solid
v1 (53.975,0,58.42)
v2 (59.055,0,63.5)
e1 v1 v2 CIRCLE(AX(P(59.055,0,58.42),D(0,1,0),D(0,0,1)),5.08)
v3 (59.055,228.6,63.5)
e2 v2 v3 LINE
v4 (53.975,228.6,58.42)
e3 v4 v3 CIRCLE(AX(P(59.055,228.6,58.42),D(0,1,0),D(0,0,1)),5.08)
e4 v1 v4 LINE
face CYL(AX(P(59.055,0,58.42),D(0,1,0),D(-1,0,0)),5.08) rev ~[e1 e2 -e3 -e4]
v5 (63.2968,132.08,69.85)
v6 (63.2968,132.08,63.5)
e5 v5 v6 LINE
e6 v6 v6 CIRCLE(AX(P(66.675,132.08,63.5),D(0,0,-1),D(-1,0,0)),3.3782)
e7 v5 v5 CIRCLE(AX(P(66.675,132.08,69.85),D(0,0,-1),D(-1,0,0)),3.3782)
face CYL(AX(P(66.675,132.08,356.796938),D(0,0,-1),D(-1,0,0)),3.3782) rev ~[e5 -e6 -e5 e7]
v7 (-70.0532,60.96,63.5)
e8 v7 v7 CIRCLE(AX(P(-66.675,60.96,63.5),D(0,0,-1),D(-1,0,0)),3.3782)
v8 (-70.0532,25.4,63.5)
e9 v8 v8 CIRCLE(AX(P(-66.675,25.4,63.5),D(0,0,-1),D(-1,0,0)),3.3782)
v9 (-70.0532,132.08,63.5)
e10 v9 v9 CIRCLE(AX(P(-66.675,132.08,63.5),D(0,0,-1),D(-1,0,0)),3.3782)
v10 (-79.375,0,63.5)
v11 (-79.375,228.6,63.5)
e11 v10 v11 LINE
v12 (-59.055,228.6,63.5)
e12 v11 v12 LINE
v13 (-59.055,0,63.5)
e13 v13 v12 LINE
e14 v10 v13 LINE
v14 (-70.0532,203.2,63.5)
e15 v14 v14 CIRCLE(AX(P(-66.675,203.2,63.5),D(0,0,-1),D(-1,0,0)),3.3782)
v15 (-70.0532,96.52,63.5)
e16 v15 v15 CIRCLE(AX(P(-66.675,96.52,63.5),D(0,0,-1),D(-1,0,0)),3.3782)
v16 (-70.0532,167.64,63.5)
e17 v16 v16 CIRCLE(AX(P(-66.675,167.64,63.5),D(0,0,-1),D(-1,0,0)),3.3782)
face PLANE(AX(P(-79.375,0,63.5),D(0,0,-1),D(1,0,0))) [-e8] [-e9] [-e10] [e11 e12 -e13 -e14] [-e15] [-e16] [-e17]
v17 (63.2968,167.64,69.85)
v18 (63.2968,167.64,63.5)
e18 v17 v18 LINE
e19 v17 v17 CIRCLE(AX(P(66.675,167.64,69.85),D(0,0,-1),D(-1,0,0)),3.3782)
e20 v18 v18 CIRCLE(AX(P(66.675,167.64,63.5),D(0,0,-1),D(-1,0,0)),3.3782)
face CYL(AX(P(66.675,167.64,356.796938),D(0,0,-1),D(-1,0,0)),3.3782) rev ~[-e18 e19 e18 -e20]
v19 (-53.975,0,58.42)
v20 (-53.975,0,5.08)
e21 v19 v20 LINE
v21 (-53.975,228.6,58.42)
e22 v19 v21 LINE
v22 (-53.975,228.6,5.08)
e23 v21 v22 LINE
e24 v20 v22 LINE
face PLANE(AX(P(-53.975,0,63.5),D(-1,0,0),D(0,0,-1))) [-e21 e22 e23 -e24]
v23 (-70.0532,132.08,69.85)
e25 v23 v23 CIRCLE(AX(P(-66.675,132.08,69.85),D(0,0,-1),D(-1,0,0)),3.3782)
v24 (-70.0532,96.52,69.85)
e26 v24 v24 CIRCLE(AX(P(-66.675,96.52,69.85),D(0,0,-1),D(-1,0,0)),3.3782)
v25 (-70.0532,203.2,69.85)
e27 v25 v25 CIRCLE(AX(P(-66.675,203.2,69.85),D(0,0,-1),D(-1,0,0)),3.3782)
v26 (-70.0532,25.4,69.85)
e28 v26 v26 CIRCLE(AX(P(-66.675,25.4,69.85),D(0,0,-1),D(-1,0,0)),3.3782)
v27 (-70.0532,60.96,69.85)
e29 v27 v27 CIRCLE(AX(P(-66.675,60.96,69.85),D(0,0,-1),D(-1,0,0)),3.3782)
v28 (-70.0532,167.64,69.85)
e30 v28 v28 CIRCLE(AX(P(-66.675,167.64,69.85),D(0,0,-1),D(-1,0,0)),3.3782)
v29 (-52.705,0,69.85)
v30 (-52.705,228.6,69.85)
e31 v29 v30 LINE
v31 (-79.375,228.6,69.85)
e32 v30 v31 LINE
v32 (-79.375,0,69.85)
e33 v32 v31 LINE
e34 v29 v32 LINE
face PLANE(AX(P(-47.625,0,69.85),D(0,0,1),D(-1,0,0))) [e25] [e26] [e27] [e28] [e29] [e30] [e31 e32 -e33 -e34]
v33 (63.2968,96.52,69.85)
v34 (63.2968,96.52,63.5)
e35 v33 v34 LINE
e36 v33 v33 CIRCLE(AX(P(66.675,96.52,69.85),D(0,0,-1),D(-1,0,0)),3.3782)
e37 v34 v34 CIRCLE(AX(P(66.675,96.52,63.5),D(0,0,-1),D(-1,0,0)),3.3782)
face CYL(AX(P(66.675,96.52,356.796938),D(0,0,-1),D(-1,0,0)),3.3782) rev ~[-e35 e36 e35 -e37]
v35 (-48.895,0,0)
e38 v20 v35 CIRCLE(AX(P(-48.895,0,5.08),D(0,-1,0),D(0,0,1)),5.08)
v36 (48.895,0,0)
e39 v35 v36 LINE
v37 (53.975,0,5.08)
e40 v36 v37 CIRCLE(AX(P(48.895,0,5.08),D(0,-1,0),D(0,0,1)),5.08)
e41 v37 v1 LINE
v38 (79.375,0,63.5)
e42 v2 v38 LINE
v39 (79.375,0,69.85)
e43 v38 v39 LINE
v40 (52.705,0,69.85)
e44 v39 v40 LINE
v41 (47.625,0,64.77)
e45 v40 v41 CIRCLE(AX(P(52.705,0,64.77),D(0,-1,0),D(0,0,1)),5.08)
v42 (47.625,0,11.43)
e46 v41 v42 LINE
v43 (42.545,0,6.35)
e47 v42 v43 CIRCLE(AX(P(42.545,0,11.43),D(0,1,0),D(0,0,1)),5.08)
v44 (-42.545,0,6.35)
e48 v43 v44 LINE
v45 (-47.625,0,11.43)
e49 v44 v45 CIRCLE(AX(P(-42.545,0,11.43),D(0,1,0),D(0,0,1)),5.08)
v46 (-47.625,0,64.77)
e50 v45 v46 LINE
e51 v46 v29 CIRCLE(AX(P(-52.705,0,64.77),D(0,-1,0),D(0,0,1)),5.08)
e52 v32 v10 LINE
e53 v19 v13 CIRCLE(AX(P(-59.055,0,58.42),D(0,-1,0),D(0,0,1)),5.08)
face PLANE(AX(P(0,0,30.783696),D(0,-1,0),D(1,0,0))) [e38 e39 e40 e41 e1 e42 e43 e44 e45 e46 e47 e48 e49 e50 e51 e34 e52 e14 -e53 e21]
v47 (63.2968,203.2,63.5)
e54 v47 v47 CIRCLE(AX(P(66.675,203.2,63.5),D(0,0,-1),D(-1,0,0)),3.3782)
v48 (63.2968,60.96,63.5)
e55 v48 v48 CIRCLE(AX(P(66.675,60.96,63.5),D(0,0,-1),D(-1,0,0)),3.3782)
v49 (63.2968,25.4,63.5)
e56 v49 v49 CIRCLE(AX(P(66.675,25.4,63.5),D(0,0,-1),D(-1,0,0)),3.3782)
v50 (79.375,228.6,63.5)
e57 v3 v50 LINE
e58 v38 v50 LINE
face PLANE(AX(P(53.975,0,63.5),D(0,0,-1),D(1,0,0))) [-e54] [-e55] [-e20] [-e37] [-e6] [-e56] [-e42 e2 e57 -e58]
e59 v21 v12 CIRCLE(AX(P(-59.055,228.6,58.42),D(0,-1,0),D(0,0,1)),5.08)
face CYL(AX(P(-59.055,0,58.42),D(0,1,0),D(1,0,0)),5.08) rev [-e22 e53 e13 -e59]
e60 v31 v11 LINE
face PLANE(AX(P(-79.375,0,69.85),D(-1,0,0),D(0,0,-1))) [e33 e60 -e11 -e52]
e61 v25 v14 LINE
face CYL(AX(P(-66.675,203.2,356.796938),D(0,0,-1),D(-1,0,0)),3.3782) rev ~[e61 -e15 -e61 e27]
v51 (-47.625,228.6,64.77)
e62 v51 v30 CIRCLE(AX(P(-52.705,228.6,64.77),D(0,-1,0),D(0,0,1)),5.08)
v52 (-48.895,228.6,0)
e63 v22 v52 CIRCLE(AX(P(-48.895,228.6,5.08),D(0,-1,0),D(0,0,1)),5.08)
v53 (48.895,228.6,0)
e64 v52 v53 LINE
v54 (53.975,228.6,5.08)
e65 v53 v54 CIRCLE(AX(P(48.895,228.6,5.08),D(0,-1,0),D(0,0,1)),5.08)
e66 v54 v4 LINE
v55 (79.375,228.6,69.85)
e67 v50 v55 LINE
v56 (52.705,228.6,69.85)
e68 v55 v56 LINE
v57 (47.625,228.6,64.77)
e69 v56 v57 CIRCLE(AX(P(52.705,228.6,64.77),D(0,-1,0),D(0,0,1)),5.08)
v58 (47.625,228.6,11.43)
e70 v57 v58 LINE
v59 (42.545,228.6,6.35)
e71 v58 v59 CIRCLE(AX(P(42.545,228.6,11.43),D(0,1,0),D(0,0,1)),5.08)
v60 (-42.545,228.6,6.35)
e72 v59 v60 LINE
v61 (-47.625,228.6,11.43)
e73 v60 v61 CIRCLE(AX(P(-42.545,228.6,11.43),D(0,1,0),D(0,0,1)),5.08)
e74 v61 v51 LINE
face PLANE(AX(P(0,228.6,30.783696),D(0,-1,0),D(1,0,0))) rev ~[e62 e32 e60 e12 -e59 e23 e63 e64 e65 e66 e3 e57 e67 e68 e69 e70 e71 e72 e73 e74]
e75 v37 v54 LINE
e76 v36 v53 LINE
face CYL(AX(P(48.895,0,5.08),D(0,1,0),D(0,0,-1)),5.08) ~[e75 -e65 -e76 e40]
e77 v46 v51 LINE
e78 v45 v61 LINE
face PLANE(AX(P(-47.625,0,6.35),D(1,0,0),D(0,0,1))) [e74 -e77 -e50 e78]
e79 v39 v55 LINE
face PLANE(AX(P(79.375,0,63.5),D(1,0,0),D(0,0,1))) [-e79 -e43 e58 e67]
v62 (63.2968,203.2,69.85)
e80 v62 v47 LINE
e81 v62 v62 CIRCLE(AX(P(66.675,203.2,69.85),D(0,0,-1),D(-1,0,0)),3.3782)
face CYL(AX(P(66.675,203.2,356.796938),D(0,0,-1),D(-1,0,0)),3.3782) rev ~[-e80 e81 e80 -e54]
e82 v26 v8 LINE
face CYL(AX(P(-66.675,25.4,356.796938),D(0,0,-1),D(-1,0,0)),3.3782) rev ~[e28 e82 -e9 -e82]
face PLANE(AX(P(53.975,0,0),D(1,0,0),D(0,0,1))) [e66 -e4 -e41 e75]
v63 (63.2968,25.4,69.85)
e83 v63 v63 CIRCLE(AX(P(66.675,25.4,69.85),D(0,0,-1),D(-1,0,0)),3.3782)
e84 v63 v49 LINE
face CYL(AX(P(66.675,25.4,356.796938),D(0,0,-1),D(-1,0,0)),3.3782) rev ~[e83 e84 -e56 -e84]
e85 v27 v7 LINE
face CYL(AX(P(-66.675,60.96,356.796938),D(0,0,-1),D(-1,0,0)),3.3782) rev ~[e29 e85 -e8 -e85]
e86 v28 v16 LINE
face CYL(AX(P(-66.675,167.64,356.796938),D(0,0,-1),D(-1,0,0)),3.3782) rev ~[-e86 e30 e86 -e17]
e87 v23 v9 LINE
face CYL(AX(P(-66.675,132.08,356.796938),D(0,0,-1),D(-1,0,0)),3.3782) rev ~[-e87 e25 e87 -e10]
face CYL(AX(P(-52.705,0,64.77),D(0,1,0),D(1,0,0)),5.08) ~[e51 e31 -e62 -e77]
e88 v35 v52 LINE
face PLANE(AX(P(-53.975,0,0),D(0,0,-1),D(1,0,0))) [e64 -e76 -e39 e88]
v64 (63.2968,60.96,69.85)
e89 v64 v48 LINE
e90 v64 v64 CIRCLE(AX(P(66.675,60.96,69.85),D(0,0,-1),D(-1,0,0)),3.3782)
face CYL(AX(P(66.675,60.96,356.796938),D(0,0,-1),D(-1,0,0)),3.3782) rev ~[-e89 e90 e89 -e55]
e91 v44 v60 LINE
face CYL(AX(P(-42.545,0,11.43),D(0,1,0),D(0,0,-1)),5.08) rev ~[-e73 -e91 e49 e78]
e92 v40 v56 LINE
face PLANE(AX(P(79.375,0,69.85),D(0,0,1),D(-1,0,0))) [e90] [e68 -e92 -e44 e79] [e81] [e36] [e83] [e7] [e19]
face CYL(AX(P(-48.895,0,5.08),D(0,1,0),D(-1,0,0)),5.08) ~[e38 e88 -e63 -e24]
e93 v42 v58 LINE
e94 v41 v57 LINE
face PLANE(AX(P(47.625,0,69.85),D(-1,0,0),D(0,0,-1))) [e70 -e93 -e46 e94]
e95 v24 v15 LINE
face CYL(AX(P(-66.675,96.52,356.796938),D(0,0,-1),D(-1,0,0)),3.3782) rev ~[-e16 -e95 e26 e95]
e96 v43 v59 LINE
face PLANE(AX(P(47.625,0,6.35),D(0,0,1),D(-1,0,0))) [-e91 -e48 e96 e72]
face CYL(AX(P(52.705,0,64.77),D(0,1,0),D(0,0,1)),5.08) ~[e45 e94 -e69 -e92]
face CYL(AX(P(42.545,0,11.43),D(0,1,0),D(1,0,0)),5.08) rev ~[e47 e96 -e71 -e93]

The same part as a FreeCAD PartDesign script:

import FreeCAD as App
import Part
import Sketcher

V = App.Vector
Q = App.Units.Quantity


def edges_at(feature, points):
    """Names of the edges that pass closest to the given points."""
    edges = feature.Shape.Edges
    near = lambda p: min(range(len(edges)), key=lambda i: edges[i].distToShape(Part.Vertex(*p))[0])
    return sorted({f"Edge{near(p) + 1}" for p in points})

doc = App.newDocument("Part")
params = doc.addObject("Spreadsheet::Sheet", "Params")
for row, (alias, value) in enumerate([
    ("sketch1_width", "1 in"),
    ("sketch1_height", "2.5 in"),
    ("sketch1_width2", "4.25 in"),
    ("sketch1_height2", "0.25 in"),
    ("pad1_length", "9 in"),
    ("fillet_radius", "0.2 in"),
    ("sketch2_diameter", "0.266 in"),
    ("hole_diameter", "0.266 in"),
    ("sketch3_diameter", "0.266 in"),
    ("hole2_diameter", "0.266 in"),
], start=1):
    params.set(f"A{row}", alias)
    params.set(f"B{row}", "=" + value)
    params.setAlias(f"B{row}", alias)

body = doc.addObject("PartDesign::Body", "Body")

sketch1 = body.newObject("Sketcher::SketchObject", "Sketch")
sketch1.AttachmentSupport = (doc.getObject("XZ_Plane"), [""])
sketch1.MapMode = "FlatFace"
sketch1.addGeometry(Part.LineSegment(V(-54, 64, 0), V(-54, 0, 0)), False)
sketch1.addGeometry(Part.LineSegment(V(-54, 0, 0), V(54, 0, 0)), False)
sketch1.addGeometry(Part.LineSegment(V(54, 0, 0), V(54, 64, 0)), False)
sketch1.addGeometry(Part.LineSegment(V(54, 64, 0), V(79, 64, 0)), False)
sketch1.addGeometry(Part.LineSegment(V(79, 64, 0), V(79, 70, 0)), False)
sketch1.addGeometry(Part.LineSegment(V(79, 70, 0), V(48, 70, 0)), False)
sketch1.addGeometry(Part.LineSegment(V(48, 70, 0), V(48, 6, 0)), False)
sketch1.addGeometry(Part.LineSegment(V(48, 6, 0), V(-48, 6, 0)), False)
sketch1.addGeometry(Part.LineSegment(V(-48, 6, 0), V(-48, 70, 0)), False)
sketch1.addGeometry(Part.LineSegment(V(-48, 70, 0), V(-79, 70, 0)), False)
sketch1.addGeometry(Part.LineSegment(V(-79, 70, 0), V(-79, 64, 0)), False)
sketch1.addGeometry(Part.LineSegment(V(-79, 64, 0), V(-54, 64, 0)), False)
sketch1.addConstraint(Sketcher.Constraint("Coincident", 0, 2, 1, 1))
sketch1.addConstraint(Sketcher.Constraint("Coincident", 1, 2, 2, 1))
sketch1.addConstraint(Sketcher.Constraint("Coincident", 2, 2, 3, 1))
sketch1.addConstraint(Sketcher.Constraint("Coincident", 3, 2, 4, 1))
sketch1.addConstraint(Sketcher.Constraint("Coincident", 4, 2, 5, 1))
sketch1.addConstraint(Sketcher.Constraint("Coincident", 5, 2, 6, 1))
sketch1.addConstraint(Sketcher.Constraint("Coincident", 6, 2, 7, 1))
sketch1.addConstraint(Sketcher.Constraint("Coincident", 7, 2, 8, 1))
sketch1.addConstraint(Sketcher.Constraint("Coincident", 8, 2, 9, 1))
sketch1.addConstraint(Sketcher.Constraint("Coincident", 9, 2, 10, 1))
sketch1.addConstraint(Sketcher.Constraint("Coincident", 10, 2, 11, 1))
sketch1.addConstraint(Sketcher.Constraint("Coincident", 11, 2, 0, 1))
sketch1.addConstraint(Sketcher.Constraint("Vertical", 0))
sketch1.addConstraint(Sketcher.Constraint("Horizontal", 1))
sketch1.addConstraint(Sketcher.Constraint("Vertical", 2))
sketch1.addConstraint(Sketcher.Constraint("Horizontal", 3))
sketch1.addConstraint(Sketcher.Constraint("Vertical", 4))
sketch1.addConstraint(Sketcher.Constraint("Horizontal", 5))
sketch1.addConstraint(Sketcher.Constraint("Vertical", 6))
sketch1.addConstraint(Sketcher.Constraint("Horizontal", 7))
sketch1.addConstraint(Sketcher.Constraint("Vertical", 8))
sketch1.addConstraint(Sketcher.Constraint("Horizontal", 9))
sketch1.addConstraint(Sketcher.Constraint("Vertical", 10))
sketch1.addConstraint(Sketcher.Constraint("Horizontal", 11))
sketch1.addConstraint(Sketcher.Constraint("Symmetric", 0, 2, 1, 2, -1, 1))
sketch1.addConstraint(Sketcher.Constraint("Symmetric", 5, 2, 8, 2, -2))
sketch1.addConstraint(Sketcher.Constraint("Symmetric", 3, 2, 10, 2, -2))
sketch1.addConstraint(Sketcher.Constraint("Equal", 2, 6))
sketch1.addConstraint(Sketcher.Constraint("DistanceX", 3, 1, 3, 2, Q("1 in")))
sketch1.addConstraint(Sketcher.Constraint("DistanceY", 0, 2, 0, 1, Q("2.5 in")))
sketch1.addConstraint(Sketcher.Constraint("DistanceX", 0, 2, 5, 2, Q("4 in")))
sketch1.addConstraint(Sketcher.Constraint("DistanceX", 1, 1, 1, 2, Q("4.25 in")))
sketch1.addConstraint(Sketcher.Constraint("DistanceY", 4, 1, 4, 2, Q("0.25 in")))
sketch1.setExpression("Constraints[28]", "Params.sketch1_width")
sketch1.setExpression("Constraints[29]", "Params.sketch1_height")
sketch1.setExpression("Constraints[31]", "Params.sketch1_width2")
sketch1.setExpression("Constraints[32]", "Params.sketch1_height2")
pad1 = body.newObject("PartDesign::Pad", "Pad")
pad1.Profile = sketch1
pad1.setExpression("Length", "Params.pad1_length")
pad1.Reversed = True
doc.recompute()

fillet = body.newObject("PartDesign::Fillet", "Fillet")
fillet.Base = (pad1, edges_at(pad1, [
    (-47.625, 114.3, 69.85),
    (-47.625, 114.3, 6.35),
    (53.975, 114.3, 0),
    (47.625, 114.3, 6.35),
    (-53.975, 114.3, 0),
    (-53.975, 114.3, 63.5),
    (53.975, 114.3, 63.5),
    (47.625, 114.3, 69.85),
]))
fillet.setExpression("Radius", "Params.fillet_radius")

sketch2 = body.newObject("Sketcher::SketchObject", "Sketch001")
sketch2.AttachmentSupport = (doc.getObject("XY_Plane"), [""])
sketch2.MapMode = "FlatFace"
sketch2.AttachmentOffset = App.Placement(V(0, 0, 2.75 * 25.4), App.Rotation())
sketch2.addGeometry(Part.Circle(V(-66.7, 203.2, 0), V(0, 0, 1), 3.4), False)
sketch2.addGeometry(Part.Circle(V(-66.7, 167.6, 0), V(0, 0, 1), 3.4), False)
sketch2.addGeometry(Part.Circle(V(-66.7, 132.1, 0), V(0, 0, 1), 3.4), False)
sketch2.addGeometry(Part.Circle(V(-66.7, 96.5, 0), V(0, 0, 1), 3.4), False)
sketch2.addGeometry(Part.Circle(V(-66.7, 61, 0), V(0, 0, 1), 3.4), False)
sketch2.addGeometry(Part.Circle(V(-66.7, 25.4, 0), V(0, 0, 1), 3.4), False)
sketch2.addConstraint(Sketcher.Constraint("Equal", 0, 1))
sketch2.addConstraint(Sketcher.Constraint("Equal", 1, 2))
sketch2.addConstraint(Sketcher.Constraint("Equal", 2, 3))
sketch2.addConstraint(Sketcher.Constraint("Equal", 3, 4))
sketch2.addConstraint(Sketcher.Constraint("Equal", 4, 5))
sketch2.addConstraint(Sketcher.Constraint("Vertical", 0, 3, 1, 3))
sketch2.addConstraint(Sketcher.Constraint("Vertical", 1, 3, 2, 3))
sketch2.addConstraint(Sketcher.Constraint("Vertical", 2, 3, 3, 3))
sketch2.addConstraint(Sketcher.Constraint("Vertical", 3, 3, 4, 3))
sketch2.addConstraint(Sketcher.Constraint("Vertical", 4, 3, 5, 3))
sketch2.addConstraint(Sketcher.Constraint("Diameter", 0, Q("0.266 in")))
sketch2.addConstraint(Sketcher.Constraint("DistanceY", -1, 1, 0, 3, Q("8 in")))
sketch2.addConstraint(Sketcher.Constraint("DistanceY", -1, 1, 5, 3, Q("1 in")))
sketch2.addConstraint(Sketcher.Constraint("DistanceY", -1, 1, 1, 3, Q("6.6 in")))
sketch2.addConstraint(Sketcher.Constraint("DistanceY", -1, 1, 2, 3, Q("5.2 in")))
sketch2.addConstraint(Sketcher.Constraint("DistanceY", -1, 1, 3, 3, Q("3.8 in")))
sketch2.addConstraint(Sketcher.Constraint("DistanceY", -1, 1, 4, 3, Q("2.4 in")))
sketch2.addConstraint(Sketcher.Constraint("DistanceX", 0, 3, -1, 1, Q("2.625 in")))
sketch2.setExpression("Constraints[10]", "Params.sketch2_diameter")
doc.recompute()
hole = body.newObject("PartDesign::Hole", "Hole")
hole.Profile = sketch2
hole.ThreadType = "None"
hole.setExpression("Diameter", "Params.hole_diameter")
hole.DepthType = "ThroughAll"

sketch3 = body.newObject("Sketcher::SketchObject", "Sketch002")
sketch3.AttachmentSupport = (doc.getObject("XY_Plane"), [""])
sketch3.MapMode = "FlatFace"
sketch3.AttachmentOffset = App.Placement(V(0, 0, 2.75 * 25.4), App.Rotation())
sketch3.addGeometry(Part.Circle(V(66.7, 203.2, 0), V(0, 0, 1), 3.4), False)
sketch3.addGeometry(Part.Circle(V(66.7, 167.6, 0), V(0, 0, 1), 3.4), False)
sketch3.addGeometry(Part.Circle(V(66.7, 132.1, 0), V(0, 0, 1), 3.4), False)
sketch3.addGeometry(Part.Circle(V(66.7, 96.5, 0), V(0, 0, 1), 3.4), False)
sketch3.addGeometry(Part.Circle(V(66.7, 61, 0), V(0, 0, 1), 3.4), False)
sketch3.addGeometry(Part.Circle(V(66.7, 25.4, 0), V(0, 0, 1), 3.4), False)
sketch3.addConstraint(Sketcher.Constraint("Equal", 0, 1))
sketch3.addConstraint(Sketcher.Constraint("Equal", 1, 2))
sketch3.addConstraint(Sketcher.Constraint("Equal", 2, 3))
sketch3.addConstraint(Sketcher.Constraint("Equal", 3, 4))
sketch3.addConstraint(Sketcher.Constraint("Equal", 4, 5))
sketch3.addConstraint(Sketcher.Constraint("Vertical", 0, 3, 1, 3))
sketch3.addConstraint(Sketcher.Constraint("Vertical", 1, 3, 2, 3))
sketch3.addConstraint(Sketcher.Constraint("Vertical", 2, 3, 3, 3))
sketch3.addConstraint(Sketcher.Constraint("Vertical", 3, 3, 4, 3))
sketch3.addConstraint(Sketcher.Constraint("Vertical", 4, 3, 5, 3))
sketch3.addConstraint(Sketcher.Constraint("Diameter", 0, Q("0.266 in")))
sketch3.addConstraint(Sketcher.Constraint("DistanceY", -1, 1, 0, 3, Q("8 in")))
sketch3.addConstraint(Sketcher.Constraint("DistanceY", -1, 1, 5, 3, Q("1 in")))
sketch3.addConstraint(Sketcher.Constraint("DistanceY", -1, 1, 1, 3, Q("6.6 in")))
sketch3.addConstraint(Sketcher.Constraint("DistanceY", -1, 1, 2, 3, Q("5.2 in")))
sketch3.addConstraint(Sketcher.Constraint("DistanceY", -1, 1, 3, 3, Q("3.8 in")))
sketch3.addConstraint(Sketcher.Constraint("DistanceY", -1, 1, 4, 3, Q("2.4 in")))
sketch3.addConstraint(Sketcher.Constraint("DistanceX", -1, 1, 0, 3, Q("2.625 in")))
sketch3.setExpression("Constraints[10]", "Params.sketch3_diameter")
doc.recompute()
hole2 = body.newObject("PartDesign::Hole", "Hole001")
hole2.Profile = sketch3
hole2.ThreadType = "None"
hole2.setExpression("Diameter", "Params.hole2_diameter")
hole2.DepthType = "ThroughAll"

doc.recompute()
